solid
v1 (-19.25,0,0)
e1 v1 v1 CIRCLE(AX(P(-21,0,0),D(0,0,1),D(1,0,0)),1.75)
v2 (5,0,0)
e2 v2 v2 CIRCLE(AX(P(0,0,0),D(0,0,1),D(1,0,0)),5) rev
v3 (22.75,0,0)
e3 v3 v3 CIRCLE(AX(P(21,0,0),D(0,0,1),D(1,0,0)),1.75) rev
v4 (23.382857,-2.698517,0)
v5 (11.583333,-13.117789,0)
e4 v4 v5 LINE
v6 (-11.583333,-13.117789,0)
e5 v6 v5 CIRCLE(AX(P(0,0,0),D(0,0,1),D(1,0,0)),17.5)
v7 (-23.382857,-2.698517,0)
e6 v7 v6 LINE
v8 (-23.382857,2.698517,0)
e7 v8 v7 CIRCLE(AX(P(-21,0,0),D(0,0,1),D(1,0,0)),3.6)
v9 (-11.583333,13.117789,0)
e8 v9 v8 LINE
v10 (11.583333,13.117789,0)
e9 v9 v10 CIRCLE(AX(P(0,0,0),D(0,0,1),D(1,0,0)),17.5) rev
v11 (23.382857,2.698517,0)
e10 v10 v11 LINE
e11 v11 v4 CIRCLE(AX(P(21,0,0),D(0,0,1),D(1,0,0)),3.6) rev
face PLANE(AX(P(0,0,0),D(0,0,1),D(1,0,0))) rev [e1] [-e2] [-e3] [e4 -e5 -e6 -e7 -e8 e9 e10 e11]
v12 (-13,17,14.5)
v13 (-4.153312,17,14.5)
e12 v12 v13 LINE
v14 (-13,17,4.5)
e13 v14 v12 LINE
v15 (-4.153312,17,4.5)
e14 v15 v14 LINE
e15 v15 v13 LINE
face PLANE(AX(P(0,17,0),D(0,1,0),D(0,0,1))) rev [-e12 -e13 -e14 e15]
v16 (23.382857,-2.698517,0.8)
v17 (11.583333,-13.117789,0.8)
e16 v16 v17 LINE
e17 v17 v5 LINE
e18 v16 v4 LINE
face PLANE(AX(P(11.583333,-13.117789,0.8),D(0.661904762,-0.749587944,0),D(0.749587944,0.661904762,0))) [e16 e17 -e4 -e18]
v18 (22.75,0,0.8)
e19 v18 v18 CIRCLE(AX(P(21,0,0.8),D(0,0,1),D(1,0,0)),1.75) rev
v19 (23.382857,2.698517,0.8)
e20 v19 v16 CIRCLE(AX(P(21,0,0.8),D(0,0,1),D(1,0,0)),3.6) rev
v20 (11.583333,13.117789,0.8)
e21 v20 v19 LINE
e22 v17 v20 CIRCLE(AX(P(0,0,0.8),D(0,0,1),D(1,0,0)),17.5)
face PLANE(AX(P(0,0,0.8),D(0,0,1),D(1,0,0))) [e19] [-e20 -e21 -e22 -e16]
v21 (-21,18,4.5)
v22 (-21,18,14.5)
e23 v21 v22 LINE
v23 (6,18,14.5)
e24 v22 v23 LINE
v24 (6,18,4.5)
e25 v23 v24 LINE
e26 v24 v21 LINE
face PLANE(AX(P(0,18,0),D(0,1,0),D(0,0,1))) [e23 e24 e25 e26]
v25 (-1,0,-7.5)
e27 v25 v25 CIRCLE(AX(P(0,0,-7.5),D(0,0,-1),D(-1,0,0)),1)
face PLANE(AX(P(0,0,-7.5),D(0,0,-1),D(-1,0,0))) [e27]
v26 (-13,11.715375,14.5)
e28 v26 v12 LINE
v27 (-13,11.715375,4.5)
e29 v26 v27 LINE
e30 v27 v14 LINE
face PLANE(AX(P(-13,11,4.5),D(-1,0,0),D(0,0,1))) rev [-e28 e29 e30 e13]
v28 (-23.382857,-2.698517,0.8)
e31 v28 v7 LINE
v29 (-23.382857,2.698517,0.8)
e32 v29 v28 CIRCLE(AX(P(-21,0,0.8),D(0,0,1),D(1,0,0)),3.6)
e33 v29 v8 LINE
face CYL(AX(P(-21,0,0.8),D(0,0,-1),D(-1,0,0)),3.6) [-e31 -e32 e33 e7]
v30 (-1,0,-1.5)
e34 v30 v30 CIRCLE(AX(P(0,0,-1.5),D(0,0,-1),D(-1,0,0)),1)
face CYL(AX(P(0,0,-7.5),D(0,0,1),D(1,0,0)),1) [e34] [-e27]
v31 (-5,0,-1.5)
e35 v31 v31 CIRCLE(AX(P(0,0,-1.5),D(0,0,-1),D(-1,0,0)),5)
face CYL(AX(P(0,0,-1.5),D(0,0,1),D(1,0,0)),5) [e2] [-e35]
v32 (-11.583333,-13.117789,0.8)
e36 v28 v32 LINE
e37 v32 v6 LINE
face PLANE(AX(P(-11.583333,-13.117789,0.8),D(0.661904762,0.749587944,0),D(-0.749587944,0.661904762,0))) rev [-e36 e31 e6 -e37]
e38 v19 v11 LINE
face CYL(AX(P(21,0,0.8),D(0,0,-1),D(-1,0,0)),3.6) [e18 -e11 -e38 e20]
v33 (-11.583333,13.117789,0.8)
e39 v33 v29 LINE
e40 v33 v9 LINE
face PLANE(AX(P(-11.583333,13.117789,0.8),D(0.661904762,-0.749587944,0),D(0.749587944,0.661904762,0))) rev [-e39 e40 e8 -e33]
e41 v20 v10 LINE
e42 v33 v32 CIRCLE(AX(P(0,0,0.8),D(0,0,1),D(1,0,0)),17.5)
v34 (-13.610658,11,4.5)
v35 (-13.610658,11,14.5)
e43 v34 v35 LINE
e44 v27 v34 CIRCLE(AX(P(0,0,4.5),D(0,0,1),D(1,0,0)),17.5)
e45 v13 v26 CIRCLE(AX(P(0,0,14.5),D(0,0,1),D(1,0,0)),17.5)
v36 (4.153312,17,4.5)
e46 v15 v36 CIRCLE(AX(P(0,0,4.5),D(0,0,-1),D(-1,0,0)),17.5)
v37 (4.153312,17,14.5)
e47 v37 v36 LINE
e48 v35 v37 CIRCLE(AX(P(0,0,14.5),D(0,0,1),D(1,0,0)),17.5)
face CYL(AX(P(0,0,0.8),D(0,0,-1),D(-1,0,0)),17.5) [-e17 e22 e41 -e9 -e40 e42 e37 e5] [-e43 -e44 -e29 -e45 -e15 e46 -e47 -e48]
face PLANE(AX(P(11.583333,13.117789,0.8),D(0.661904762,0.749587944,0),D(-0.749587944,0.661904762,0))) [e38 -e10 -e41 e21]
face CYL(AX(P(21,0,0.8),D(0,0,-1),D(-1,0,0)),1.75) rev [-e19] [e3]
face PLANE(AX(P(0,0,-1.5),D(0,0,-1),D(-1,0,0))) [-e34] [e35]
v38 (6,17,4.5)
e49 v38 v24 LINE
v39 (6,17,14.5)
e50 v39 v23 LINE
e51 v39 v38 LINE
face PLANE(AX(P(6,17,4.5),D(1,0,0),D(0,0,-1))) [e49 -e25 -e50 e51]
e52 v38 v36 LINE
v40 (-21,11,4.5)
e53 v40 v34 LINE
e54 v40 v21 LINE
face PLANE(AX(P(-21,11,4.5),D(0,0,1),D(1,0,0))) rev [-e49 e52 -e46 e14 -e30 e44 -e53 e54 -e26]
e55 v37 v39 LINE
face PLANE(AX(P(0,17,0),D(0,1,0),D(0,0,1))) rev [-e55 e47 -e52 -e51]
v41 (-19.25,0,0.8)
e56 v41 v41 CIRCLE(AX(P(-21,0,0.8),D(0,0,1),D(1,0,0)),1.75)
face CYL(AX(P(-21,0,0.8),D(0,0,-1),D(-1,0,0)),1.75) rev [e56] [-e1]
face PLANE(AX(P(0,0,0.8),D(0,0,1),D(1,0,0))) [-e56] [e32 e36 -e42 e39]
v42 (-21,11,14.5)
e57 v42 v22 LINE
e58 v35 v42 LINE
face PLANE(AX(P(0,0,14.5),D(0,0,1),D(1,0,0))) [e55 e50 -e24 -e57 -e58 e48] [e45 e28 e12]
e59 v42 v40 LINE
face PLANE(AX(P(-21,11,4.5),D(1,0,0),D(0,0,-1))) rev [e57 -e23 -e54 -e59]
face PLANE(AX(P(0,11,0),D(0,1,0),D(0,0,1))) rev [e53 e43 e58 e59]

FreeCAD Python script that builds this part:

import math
import FreeCAD as App
import Part
import Sketcher

V = App.Vector
Q = App.Units.Quantity


def add_polygon(sketch, points):
    """Adds a closed chain of lines whose ends are joined by coincident constraints."""
    first, n = sketch.GeometryCount, len(points)
    for a, b in zip(points, points[1:] + points[:1]):
        sketch.addGeometry(Part.LineSegment(App.Vector(*a, 0), App.Vector(*b, 0)), False)
    for i in range(n):
        sketch.addConstraint(Sketcher.Constraint("Coincident", first + i, 2, first + (i + 1) % n, 1))

doc = App.newDocument("Part")
body = doc.addObject("PartDesign::Body", "Body")

# Sketch on XY plane
sketch1 = body.newObject("Sketcher::SketchObject", "Sketch")
sketch1.AttachmentSupport = (doc.getObject("XY_Plane"), [""])
sketch1.MapMode = "FlatFace"
sketch1.addGeometry([
    Part.ArcOfCircle(Part.Circle(V(21, 0, 0), V(0, 0, 1), 3.6), math.radians(-49), math.radians(49)),  # 0
    Part.LineSegment(V(23.4, 2.7, 0), V(11.6, 13.1, 0)),  # 1
    Part.ArcOfCircle(Part.Circle(V(0, 0, 0), V(0, 0, 1), 17.5), math.radians(49), math.radians(131)),  # 2
    Part.LineSegment(V(-11.6, 13.1, 0), V(-23.4, 2.7, 0)),  # 3
    Part.ArcOfCircle(Part.Circle(V(-21, 0, 0), V(0, 0, 1), 3.6), math.radians(131), math.radians(229)),  # 4
    Part.LineSegment(V(-23.4, -2.7, 0), V(-11.6, -13.1, 0)),  # 5
    Part.ArcOfCircle(Part.Circle(V(0, 0, 0), V(0, 0, 1), 17.5), math.radians(-131), math.radians(-49)),  # 6
    Part.LineSegment(V(11.6, -13.1, 0), V(23.4, -2.7, 0)),  # 7
    Part.Circle(V(21, 0, 0), V(0, 0, 1), 1.8),  # 8
    Part.Circle(V(-21, 0, 0), V(0, 0, 1), 1.8),  # 9
], False)
sketch1.addConstraint([
    Sketcher.Constraint("Tangent", 0, 2, 1, 1),
    Sketcher.Constraint("Tangent", 1, 2, 2, 1),
    Sketcher.Constraint("Tangent", 2, 2, 3, 1),
    Sketcher.Constraint("Tangent", 3, 2, 4, 1),
    Sketcher.Constraint("Tangent", 4, 2, 5, 1),
    Sketcher.Constraint("Tangent", 5, 2, 6, 1),
    Sketcher.Constraint("Tangent", 6, 2, 7, 1),
    Sketcher.Constraint("Tangent", 7, 2, 0, 1),
    Sketcher.Constraint("Coincident", 2, 3, -1, 1),
    Sketcher.Constraint("Coincident", 6, 3, -1, 1),
    Sketcher.Constraint("Coincident", 8, 3, 0, 3),
    Sketcher.Constraint("Coincident", 9, 3, 4, 3),
    Sketcher.Constraint("Equal", 0, 4),
    Sketcher.Constraint("Equal", 2, 6),
    Sketcher.Constraint("Equal", 8, 9),
    Sketcher.Constraint("Symmetric", 0, 3, 4, 3, -1, 1),
    Sketcher.Constraint("PointOnObject", 0, 3, -1),
    Sketcher.Constraint("Diameter", 8, Q("3.5 mm")),
    Sketcher.Constraint("Radius", 0, Q("3.6 mm")),
    Sketcher.Constraint("Radius", 2, Q("17.5 mm")),
    Sketcher.Constraint("DistanceX", -1, 1, 0, 3, Q("21 mm")),
])
pad1 = body.newObject("PartDesign::Pad", "Pad")
pad1.Profile = sketch1
pad1.Length = 0.8

# Sketch on XY plane
sketch2 = body.newObject("Sketcher::SketchObject", "Sketch001")
sketch2.AttachmentSupport = (doc.getObject("XY_Plane"), [""])
sketch2.MapMode = "FlatFace"
sketch2.AttachmentOffset = App.Placement(V(0, 0, 0.8), App.Rotation())
sketch2.addGeometry(Part.Circle(V(0, 0, 0), V(0, 0, 1), 18), False)
sketch2.addConstraint([
    Sketcher.Constraint("Coincident", 0, 3, -1, 1),
    Sketcher.Constraint("Diameter", 0, Q("35 mm")),
])
pad2 = body.newObject("PartDesign::Pad", "Pad001")
pad2.Profile = sketch2
pad2.Length = 13.7

# Sketch on XY plane
sketch3 = body.newObject("Sketcher::SketchObject", "Sketch002")
sketch3.AttachmentSupport = (doc.getObject("XY_Plane"), [""])
sketch3.MapMode = "FlatFace"
sketch3.addGeometry(Part.Circle(V(0, 0, 0), V(0, 0, 1), 5), False)
sketch3.addConstraint([
    Sketcher.Constraint("Coincident", 0, 3, -1, 1),
    Sketcher.Constraint("Diameter", 0, Q("10 mm")),
])
pad3 = body.newObject("PartDesign::Pad", "Pad002")
pad3.Profile = sketch3
pad3.Length = 1.5
pad3.Reversed = True

# Sketch on XY plane
sketch4 = body.newObject("Sketcher::SketchObject", "Sketch003")
sketch4.AttachmentSupport = (doc.getObject("XY_Plane"), [""])
sketch4.MapMode = "FlatFace"
sketch4.AttachmentOffset = App.Placement(V(0, 0, -1.5), App.Rotation())
sketch4.addGeometry(Part.Circle(V(0, 0, 0), V(0, 0, 1), 1), False)
sketch4.addConstraint([
    Sketcher.Constraint("Coincident", 0, 3, -1, 1),
    Sketcher.Constraint("Diameter", 0, Q("2 mm")),
])
pad4 = body.newObject("PartDesign::Pad", "Pad003")
pad4.Profile = sketch4
pad4.Length = 6
pad4.Reversed = True
body2 = doc.addObject("PartDesign::Body", "Body001")

# Sketch on XZ plane
sketch5 = body2.newObject("Sketcher::SketchObject", "Sketch004")
sketch5.AttachmentSupport = (doc.getObject("XZ_Plane001"), [""])
sketch5.MapMode = "FlatFace"
sketch5.AttachmentOffset = App.Placement(V(0, 0, -17.5), App.Rotation())
add_polygon(sketch5, [(-21, 4), (-21, 14), (6, 14), (6, 4)])  # lines 0-3
sketch5.addConstraint([
    Sketcher.Constraint("Vertical", 0),
    Sketcher.Constraint("Horizontal", 1),
    Sketcher.Constraint("Vertical", 2),
    Sketcher.Constraint("Horizontal", 3),
    Sketcher.Constraint("DistanceX", 1, 1, 1, 2, Q("27 mm")),
    Sketcher.Constraint("DistanceY", 0, 1, 0, 2, Q("10 mm")),
    Sketcher.Constraint("DistanceX", 0, 2, -1, 1, Q("21 mm")),
    Sketcher.Constraint("DistanceY", -1, 1, 0, 2, Q("14.5 mm")),
])
pad5 = body2.newObject("PartDesign::Pad", "Pad004")
pad5.Profile = sketch5
pad5.Type = "TwoLengths"
pad5.Length = 0.5
pad5.Length2 = 0.5
pad5.Reversed = True
doc.recompute()

boolean = body.newObject("PartDesign::Boolean", "Boolean")
boolean.Type = "Fuse"
boolean.addObjects([body2])

# Sketch on XZ plane
sketch6 = body.newObject("Sketcher::SketchObject", "Sketch005")
sketch6.AttachmentSupport = (doc.getObject("XZ_Plane"), [""])
sketch6.MapMode = "FlatFace"
sketch6.AttachmentOffset = App.Placement(V(0, 0, -17), App.Rotation())
add_polygon(sketch6, [(-21, 14), (-21, 4), (-13, 4), (-13, 14)])  # lines 0-3
sketch6.addConstraint([
    Sketcher.Constraint("Vertical", 0),
    Sketcher.Constraint("Horizontal", 1),
    Sketcher.Constraint("Vertical", 2),
    Sketcher.Constraint("Horizontal", 3),
    Sketcher.Constraint("DistanceX", 1, 1, 1, 2, Q("8 mm")),
    Sketcher.Constraint("DistanceY", 0, 2, 0, 1, Q("10 mm")),
    Sketcher.Constraint("DistanceX", 0, 2, -1, 1, Q("21 mm")),
    Sketcher.Constraint("DistanceY", -1, 1, 0, 2, Q("4.5 mm")),
])
pad6 = body.newObject("PartDesign::Pad", "Pad005")
pad6.Profile = sketch6
pad6.Length = 6

doc.recompute()
